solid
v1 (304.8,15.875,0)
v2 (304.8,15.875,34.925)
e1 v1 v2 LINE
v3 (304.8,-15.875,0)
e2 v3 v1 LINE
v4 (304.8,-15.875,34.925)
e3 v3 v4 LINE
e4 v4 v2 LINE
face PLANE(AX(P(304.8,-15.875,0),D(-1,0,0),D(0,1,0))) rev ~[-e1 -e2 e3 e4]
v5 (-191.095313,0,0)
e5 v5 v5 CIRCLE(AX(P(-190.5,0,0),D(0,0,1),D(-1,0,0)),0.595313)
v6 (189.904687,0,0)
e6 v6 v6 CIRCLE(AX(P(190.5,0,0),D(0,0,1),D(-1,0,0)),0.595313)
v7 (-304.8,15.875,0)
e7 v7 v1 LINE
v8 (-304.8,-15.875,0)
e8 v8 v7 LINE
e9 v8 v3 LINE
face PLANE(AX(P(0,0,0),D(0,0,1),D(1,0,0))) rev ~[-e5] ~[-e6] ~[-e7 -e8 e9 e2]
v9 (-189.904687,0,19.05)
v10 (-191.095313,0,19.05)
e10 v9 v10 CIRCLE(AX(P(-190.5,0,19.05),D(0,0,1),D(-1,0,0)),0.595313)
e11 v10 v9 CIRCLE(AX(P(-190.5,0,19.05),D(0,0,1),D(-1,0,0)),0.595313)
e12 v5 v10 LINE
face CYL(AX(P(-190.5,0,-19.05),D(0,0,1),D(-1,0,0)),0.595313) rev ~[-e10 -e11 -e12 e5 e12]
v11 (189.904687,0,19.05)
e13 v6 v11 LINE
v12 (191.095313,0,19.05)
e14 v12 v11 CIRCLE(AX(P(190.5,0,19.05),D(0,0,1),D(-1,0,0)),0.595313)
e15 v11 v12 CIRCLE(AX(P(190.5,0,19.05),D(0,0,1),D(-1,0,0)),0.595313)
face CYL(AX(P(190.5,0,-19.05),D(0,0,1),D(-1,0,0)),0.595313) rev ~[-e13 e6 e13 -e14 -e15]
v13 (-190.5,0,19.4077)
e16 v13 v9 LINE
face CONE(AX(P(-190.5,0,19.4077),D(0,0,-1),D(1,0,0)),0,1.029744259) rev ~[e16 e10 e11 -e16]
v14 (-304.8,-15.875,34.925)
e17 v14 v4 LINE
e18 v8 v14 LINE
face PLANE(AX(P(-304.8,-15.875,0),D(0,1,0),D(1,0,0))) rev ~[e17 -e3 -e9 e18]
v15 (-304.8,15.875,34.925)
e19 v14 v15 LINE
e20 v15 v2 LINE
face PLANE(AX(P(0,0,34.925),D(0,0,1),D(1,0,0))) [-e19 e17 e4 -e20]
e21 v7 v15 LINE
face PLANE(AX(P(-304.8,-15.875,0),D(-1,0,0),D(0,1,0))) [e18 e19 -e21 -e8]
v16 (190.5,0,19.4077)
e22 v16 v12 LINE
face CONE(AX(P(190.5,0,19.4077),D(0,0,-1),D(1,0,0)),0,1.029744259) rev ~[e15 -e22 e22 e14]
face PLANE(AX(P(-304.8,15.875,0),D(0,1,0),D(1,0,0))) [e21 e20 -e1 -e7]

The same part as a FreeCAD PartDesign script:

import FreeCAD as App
import Part
import Sketcher
from FreeCAD import Vector
Q = App.Units.Quantity

doc = App.newDocument("Part")
body = doc.addObject("PartDesign::Body", "Body")

# Sketch on XY plane
sketch1 = body.newObject("Sketcher::SketchObject", "Sketch")
sketch1.AttachmentSupport = (doc.getObject("XY_Plane"), [""])
sketch1.MapMode = "FlatFace"
sketch1.addGeometry([
    Part.LineSegment(Vector(-304.8, 15.875, 0), Vector(-304.8, -15.875, 0)),
    Part.LineSegment(Vector(-304.8, -15.875, 0), Vector(304.8, -15.875, 0)),
    Part.LineSegment(Vector(304.8, -15.875, 0), Vector(304.8, 15.875, 0)),
    Part.LineSegment(Vector(304.8, 15.875, 0), Vector(-304.8, 15.875, 0)),
], False)
sketch1.addConstraint([
    Sketcher.Constraint("Coincident", 0, 2, 1, 1),
    Sketcher.Constraint("Coincident", 1, 2, 2, 1),
    Sketcher.Constraint("Coincident", 2, 2, 3, 1),
    Sketcher.Constraint("Coincident", 3, 2, 0, 1),
    Sketcher.Constraint("Vertical", 0),
    Sketcher.Constraint("Horizontal", 1),
    Sketcher.Constraint("Vertical", 2),
    Sketcher.Constraint("Horizontal", 3),
    Sketcher.Constraint("Symmetric", 0, 2, 2, 2, -1, 1),
    Sketcher.Constraint("DistanceX", 1, 1, 1, 2, Q("24 in")),
    Sketcher.Constraint("DistanceY", 0, 2, 0, 1, Q("1.25 in")),
])
pad1 = body.newObject("PartDesign::Pad", "Pad")
pad1.Profile = sketch1
pad1.Length = Q("1.375 in")

# Sketch on XY plane
sketch2 = body.newObject("Sketcher::SketchObject", "Sketch001")
sketch2.AttachmentSupport = (doc.getObject("XY_Plane"), [""])
sketch2.MapMode = "FlatFace"
sketch2.addGeometry([
    Part.Circle(Vector(-190.5, 0, 0), Vector(0, 0, 1), 0.595313),
    Part.Circle(Vector(190.5, 0, 0), Vector(0, 0, 1), 0.595313),
], False)
sketch2.addConstraint([
    Sketcher.Constraint("Equal", 0, 1),
    Sketcher.Constraint("Symmetric", 0, 3, 1, 3, -1, 1),
    Sketcher.Constraint("PointOnObject", 0, 3, -1),
    Sketcher.Constraint("Diameter", 0, Q("0.046875 in")),
    Sketcher.Constraint("DistanceX", 0, 3, 1, 3, Q("15 in")),
])
doc.recompute()
hole = body.newObject("PartDesign::Hole", "Hole")
hole.Profile = sketch2
hole.ThreadType = "None"
hole.Diameter = Q("0.046875 in")
hole.DepthType = "Dimension"
hole.Depth = Q("0.75 in")
hole.DrillPoint = "Angled"
hole.DrillPointAngle = 118
hole.Reversed = True

doc.recompute()
